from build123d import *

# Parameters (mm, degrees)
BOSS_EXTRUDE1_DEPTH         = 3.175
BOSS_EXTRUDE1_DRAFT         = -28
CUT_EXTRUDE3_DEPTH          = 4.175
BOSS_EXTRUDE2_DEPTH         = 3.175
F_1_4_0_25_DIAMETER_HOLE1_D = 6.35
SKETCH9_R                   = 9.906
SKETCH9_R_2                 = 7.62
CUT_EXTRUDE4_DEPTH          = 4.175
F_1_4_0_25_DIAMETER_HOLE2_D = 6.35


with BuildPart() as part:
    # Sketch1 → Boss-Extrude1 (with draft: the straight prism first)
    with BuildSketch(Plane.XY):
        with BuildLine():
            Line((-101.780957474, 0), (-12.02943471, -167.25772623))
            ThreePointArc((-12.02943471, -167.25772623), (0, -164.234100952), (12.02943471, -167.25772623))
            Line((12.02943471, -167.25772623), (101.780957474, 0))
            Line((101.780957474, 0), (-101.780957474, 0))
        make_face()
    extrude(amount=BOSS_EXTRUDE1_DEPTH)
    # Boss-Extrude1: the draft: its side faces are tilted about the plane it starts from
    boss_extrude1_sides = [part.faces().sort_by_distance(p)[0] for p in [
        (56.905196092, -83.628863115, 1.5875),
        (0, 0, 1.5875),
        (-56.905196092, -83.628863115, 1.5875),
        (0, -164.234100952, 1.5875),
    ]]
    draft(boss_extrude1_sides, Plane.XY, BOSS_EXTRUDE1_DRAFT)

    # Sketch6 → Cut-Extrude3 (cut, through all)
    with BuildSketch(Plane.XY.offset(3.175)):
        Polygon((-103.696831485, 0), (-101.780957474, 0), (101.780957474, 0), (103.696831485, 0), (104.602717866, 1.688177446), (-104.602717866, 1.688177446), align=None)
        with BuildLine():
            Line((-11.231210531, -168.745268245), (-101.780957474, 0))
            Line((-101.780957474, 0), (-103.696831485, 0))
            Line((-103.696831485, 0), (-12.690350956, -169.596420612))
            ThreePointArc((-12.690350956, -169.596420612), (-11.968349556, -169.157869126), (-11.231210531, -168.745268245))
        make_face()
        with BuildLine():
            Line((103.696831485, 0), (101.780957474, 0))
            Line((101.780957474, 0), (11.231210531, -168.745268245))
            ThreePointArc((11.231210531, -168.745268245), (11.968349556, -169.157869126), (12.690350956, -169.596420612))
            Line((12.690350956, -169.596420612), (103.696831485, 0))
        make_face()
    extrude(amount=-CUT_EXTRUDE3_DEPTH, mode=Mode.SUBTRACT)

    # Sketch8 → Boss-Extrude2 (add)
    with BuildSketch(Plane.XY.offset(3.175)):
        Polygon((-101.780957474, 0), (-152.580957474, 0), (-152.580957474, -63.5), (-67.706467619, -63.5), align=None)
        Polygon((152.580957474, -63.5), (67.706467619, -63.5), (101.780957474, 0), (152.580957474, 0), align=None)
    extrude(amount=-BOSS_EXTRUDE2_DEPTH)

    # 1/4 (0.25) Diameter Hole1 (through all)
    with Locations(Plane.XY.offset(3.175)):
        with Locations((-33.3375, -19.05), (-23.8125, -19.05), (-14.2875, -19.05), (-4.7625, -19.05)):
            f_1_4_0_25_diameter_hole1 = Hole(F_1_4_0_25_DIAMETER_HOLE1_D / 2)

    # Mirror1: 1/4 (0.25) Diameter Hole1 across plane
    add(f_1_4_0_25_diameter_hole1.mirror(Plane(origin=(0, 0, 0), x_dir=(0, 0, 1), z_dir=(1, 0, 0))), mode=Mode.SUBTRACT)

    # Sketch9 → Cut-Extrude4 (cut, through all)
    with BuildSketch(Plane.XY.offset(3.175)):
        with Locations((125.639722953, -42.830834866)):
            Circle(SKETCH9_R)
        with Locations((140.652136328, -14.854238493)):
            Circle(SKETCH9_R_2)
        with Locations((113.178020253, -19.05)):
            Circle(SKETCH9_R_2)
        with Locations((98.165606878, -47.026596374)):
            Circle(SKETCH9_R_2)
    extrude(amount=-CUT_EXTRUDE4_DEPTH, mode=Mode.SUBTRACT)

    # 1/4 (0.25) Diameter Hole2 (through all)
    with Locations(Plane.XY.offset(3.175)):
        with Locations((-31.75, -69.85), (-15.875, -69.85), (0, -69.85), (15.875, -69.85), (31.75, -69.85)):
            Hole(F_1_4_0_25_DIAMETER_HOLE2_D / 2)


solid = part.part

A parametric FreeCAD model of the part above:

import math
import FreeCAD as App
import Part
import Sketcher
Q = App.Units.Quantity


def faces_at(feature, points):
    """Names of the faces that lie closest to the given points."""
    faces = feature.Shape.Faces
    near = lambda p: min(range(len(faces)), key=lambda i: faces[i].distToShape(Part.Vertex(*p))[0])
    return sorted({f"Face{near(p) + 1}" for p in points})


def add_polygon(sketch, points):
    """Adds a closed chain of lines whose ends are joined by coincident constraints."""
    first, n = sketch.GeometryCount, len(points)
    for a, b in zip(points, points[1:] + points[:1]):
        sketch.addGeometry(Part.LineSegment(App.Vector(*a, 0), App.Vector(*b, 0)), False)
    for i in range(n):
        sketch.addConstraint(Sketcher.Constraint("Coincident", first + i, 2, first + (i + 1) % n, 1))

doc = App.newDocument("Part")
body = doc.addObject("PartDesign::Body", "Body")

sketch1 = body.newObject("Sketcher::SketchObject", "Sketch")
sketch1.AttachmentSupport = (doc.getObject("XY_Plane"), [""])
sketch1.MapMode = "FlatFace"
sketch1.addGeometry(Part.LineSegment(App.Vector(-102, 0, 0), App.Vector(-12, -167, 0)), False)
sketch1.addGeometry(Part.ArcOfCircle(Part.Circle(App.Vector(0, -190, 0), App.Vector(0, 0, 1), 25), math.radians(62), math.radians(118)), False)
sketch1.addGeometry(Part.LineSegment(App.Vector(12, -167, 0), App.Vector(102, 0, 0)), False)
sketch1.addGeometry(Part.LineSegment(App.Vector(102, 0, 0), App.Vector(-102, 0, 0)), False)
sketch1.addConstraint(Sketcher.Constraint("Coincident", 0, 2, 1, 2))
sketch1.addConstraint(Sketcher.Constraint("Coincident", 1, 1, 2, 1))
sketch1.addConstraint(Sketcher.Constraint("Coincident", 2, 2, 3, 1))
sketch1.addConstraint(Sketcher.Constraint("Coincident", 3, 2, 0, 1))
sketch1.addConstraint(Sketcher.Constraint("Horizontal", 3))
sketch1.addConstraint(Sketcher.Constraint("Symmetric", 2, 2, 3, 2, -1, 1))
sketch1.addConstraint(Sketcher.Constraint("Symmetric", 0, 2, 1, 1, -2))
sketch1.addConstraint(Sketcher.Constraint("Radius", 1, 25.441249))
sketch1.addConstraint(Sketcher.Constraint("Distance", 0, 189.816972))
sketch1.addConstraint(Sketcher.Constraint("DistanceX", 3, 2, 3, 1, 203.561915))
sketch1.addConstraint(Sketcher.Constraint("DistanceX", 0, 2, 1, 1, 24.058869))
pad1 = body.newObject("PartDesign::Pad", "Pad")
pad1.Profile = sketch1
pad1.Length = Q("0.125 in")
doc.recompute()

draft = body.newObject("PartDesign::Draft", "Draft")
draft.Base = (pad1, faces_at(pad1, [
    (56.905, -83.629, 1.587),
    (0, 0, 1.587),
    (-56.905, -83.629, 1.587),
    (0, -164.234, 1.587),
]))
draft.NeutralPlane = (doc.getObject("XY_Plane"), [""])
draft.Angle = 28
draft.Reversed = True

sketch2 = body.newObject("Sketcher::SketchObject", "Sketch001")
sketch2.AttachmentSupport = (doc.getObject("XY_Plane"), [""])
sketch2.MapMode = "FlatFace"
sketch2.AttachmentOffset = App.Placement(App.Vector(0, 0, 0.125 * 25.4), App.Rotation())
sketch2.addGeometry(Part.LineSegment(App.Vector(-101.8, 0, 0), App.Vector(101.8, 0, 0)), False)
sketch2.addGeometry(Part.LineSegment(App.Vector(101.8, 0, 0), App.Vector(11.2, -168.7, 0)), False)
sketch2.addGeometry(Part.ArcOfCircle(Part.Circle(App.Vector(0, -189.7, 0), App.Vector(0, 0, 1), 23.8), math.radians(57.71), math.radians(61.78)), False)
sketch2.addGeometry(Part.LineSegment(App.Vector(12.7, -169.6, 0), App.Vector(103.7, 0, 0)), False)
sketch2.addGeometry(Part.LineSegment(App.Vector(103.7, 0, 0), App.Vector(104.6, 1.7, 0)), False)
sketch2.addGeometry(Part.LineSegment(App.Vector(104.6, 1.7, 0), App.Vector(-104.6, 1.7, 0)), False)
sketch2.addGeometry(Part.LineSegment(App.Vector(-104.6, 1.7, 0), App.Vector(-103.7, 0, 0)), False)
sketch2.addGeometry(Part.LineSegment(App.Vector(-103.7, 0, 0), App.Vector(-12.7, -169.6, 0)), False)
sketch2.addGeometry(Part.ArcOfCircle(Part.Circle(App.Vector(0, -189.7, 0), App.Vector(0, 0, 1), 23.8), math.radians(118.22), math.radians(122.29)), False)
sketch2.addGeometry(Part.LineSegment(App.Vector(-11.2, -168.7, 0), App.Vector(-101.8, 0, 0)), False)
sketch2.addConstraint(Sketcher.Constraint("Coincident", 0, 2, 1, 1))
sketch2.addConstraint(Sketcher.Constraint("Coincident", 1, 2, 2, 2))
sketch2.addConstraint(Sketcher.Constraint("Coincident", 2, 1, 3, 1))
sketch2.addConstraint(Sketcher.Constraint("Coincident", 3, 2, 4, 1))
sketch2.addConstraint(Sketcher.Constraint("Coincident", 4, 2, 5, 1))
sketch2.addConstraint(Sketcher.Constraint("Coincident", 5, 2, 6, 1))
sketch2.addConstraint(Sketcher.Constraint("Coincident", 6, 2, 7, 1))
sketch2.addConstraint(Sketcher.Constraint("Coincident", 7, 2, 8, 2))
sketch2.addConstraint(Sketcher.Constraint("Coincident", 8, 1, 9, 1))
sketch2.addConstraint(Sketcher.Constraint("Coincident", 9, 2, 0, 1))
sketch2.addConstraint(Sketcher.Constraint("Horizontal", 0))
sketch2.addConstraint(Sketcher.Constraint("Horizontal", 5))
sketch2.addConstraint(Sketcher.Constraint("Coincident", 8, 3, 2, 3))
sketch2.addConstraint(Sketcher.Constraint("Equal", 2, 8))
sketch2.addConstraint(Sketcher.Constraint("Symmetric", 3, 2, 6, 2, -1, 1))
sketch2.addConstraint(Sketcher.Constraint("Symmetric", 0, 2, 9, 2, -1, 1))
sketch2.addConstraint(Sketcher.Constraint("Symmetric", 2, 1, 7, 2, -2))
sketch2.addConstraint(Sketcher.Constraint("PointOnObject", 3, 2, -1))
sketch2.addConstraint(Sketcher.Constraint("Parallel", 1, 3))
sketch2.addConstraint(Sketcher.Constraint("Parallel", 3, 4))
sketch2.addConstraint(Sketcher.Constraint("Parallel", 6, 7))
sketch2.addConstraint(Sketcher.Constraint("Parallel", 7, 9))
sketch2.addConstraint(Sketcher.Constraint("Radius", 2, 23.753072))
sketch2.addConstraint(Sketcher.Constraint("DistanceY", 2, 1, 4, 2, 171.284598))
sketch2.addConstraint(Sketcher.Constraint("DistanceX", 7, 2, 2, 1, 25.380702))
sketch2.addConstraint(Sketcher.Constraint("Distance", 1, 191.505149))
sketch2.addConstraint(Sketcher.Constraint("DistanceX", 0, 1, 0, 2, 203.561915))
sketch2.addConstraint(Sketcher.Constraint("DistanceX", 5, 2, 5, 1, 209.205436))
pocket1 = body.newObject("PartDesign::Pocket", "Pocket")
pocket1.Profile = sketch2
pocket1.Type = "ThroughAll"

sketch3 = body.newObject("Sketcher::SketchObject", "Sketch002")
sketch3.AttachmentSupport = (doc.getObject("XY_Plane"), [""])
sketch3.MapMode = "FlatFace"
sketch3.AttachmentOffset = App.Placement(App.Vector(0, 0, 0.125 * 25.4), App.Rotation())
add_polygon(sketch3, [(-102, 0), (-153, 0), (-153, -64), (-68, -64)])
add_polygon(sketch3, [(68, -64), (153, -64), (153, 0), (102, 0)])
sketch3.addConstraint(Sketcher.Constraint("Horizontal", 0))
sketch3.addConstraint(Sketcher.Constraint("Vertical", 1))
sketch3.addConstraint(Sketcher.Constraint("Horizontal", 2))
sketch3.addConstraint(Sketcher.Constraint("Horizontal", 4))
sketch3.addConstraint(Sketcher.Constraint("Vertical", 5))
sketch3.addConstraint(Sketcher.Constraint("Horizontal", 6))
sketch3.addConstraint(Sketcher.Constraint("Symmetric", 0, 2, 5, 2, -1, 1))
sketch3.addConstraint(Sketcher.Constraint("Symmetric", 3, 2, 6, 2, -2))
sketch3.addConstraint(Sketcher.Constraint("Symmetric", 2, 2, 7, 2, -2))
sketch3.addConstraint(Sketcher.Constraint("DistanceX", 0, 2, 0, 1, Q("2 in")))
sketch3.addConstraint(Sketcher.Constraint("DistanceY", 1, 2, 1, 1, Q("2.5 in")))
sketch3.addConstraint(Sketcher.Constraint("Distance", 3, 72.064699))
sketch3.addConstraint(Sketcher.Constraint("DistanceX", 0, 2, -1, 1, 152.580957))
pad2 = body.newObject("PartDesign::Pad", "Pad001")
pad2.Profile = sketch3
pad2.Length = Q("0.125 in")
pad2.Reversed = True

sketch4 = body.newObject("Sketcher::SketchObject", "Sketch003")
sketch4.AttachmentSupport = (doc.getObject("XY_Plane"), [""])
sketch4.MapMode = "FlatFace"
sketch4.AttachmentOffset = App.Placement(App.Vector(0, 0, 0.125 * 25.4), App.Rotation())
sketch4.addGeometry(Part.Circle(App.Vector(-33.3, -19.1, 0), App.Vector(0, 0, 1), 3.2), False)
sketch4.addGeometry(Part.Circle(App.Vector(-23.8, -19.1, 0), App.Vector(0, 0, 1), 3.2), False)
sketch4.addGeometry(Part.Circle(App.Vector(-14.3, -19.1, 0), App.Vector(0, 0, 1), 3.2), False)
sketch4.addGeometry(Part.Circle(App.Vector(-4.8, -19.1, 0), App.Vector(0, 0, 1), 3.2), False)
sketch4.addConstraint(Sketcher.Constraint("Equal", 0, 1))
sketch4.addConstraint(Sketcher.Constraint("Equal", 1, 2))
sketch4.addConstraint(Sketcher.Constraint("Equal", 2, 3))
sketch4.addConstraint(Sketcher.Constraint("Horizontal", 0, 3, 1, 3))
sketch4.addConstraint(Sketcher.Constraint("Horizontal", 1, 3, 2, 3))
sketch4.addConstraint(Sketcher.Constraint("Horizontal", 2, 3, 3, 3))
sketch4.addConstraint(Sketcher.Constraint("Diameter", 0, Q("0.25 in")))
sketch4.addConstraint(Sketcher.Constraint("DistanceY", 0, 3, -1, 1, Q("0.75 in")))
sketch4.addConstraint(Sketcher.Constraint("DistanceX", 0, 3, 2, 3, Q("0.75 in")))
sketch4.addConstraint(Sketcher.Constraint("DistanceX", 1, 3, 3, 3, Q("0.75 in")))
sketch4.addConstraint(Sketcher.Constraint("DistanceX", 0, 3, -1, 1, Q("1.3125 in")))
sketch4.addConstraint(Sketcher.Constraint("DistanceX", 1, 3, -1, 1, Q("0.9375 in")))
doc.recompute()
hole = body.newObject("PartDesign::Hole", "Hole")
hole.Profile = sketch4
hole.ThreadType = "None"
hole.Diameter = Q("0.25 in")
hole.DepthType = "ThroughAll"
doc.recompute()

mirrored = body.newObject("PartDesign::Mirrored", "Mirrored")
mirrored.Originals = [hole]
mirrored.MirrorPlane = (doc.getObject("YZ_Plane"), [""])
body.Tip = mirrored

sketch5 = body.newObject("Sketcher::SketchObject", "Sketch004")
sketch5.AttachmentSupport = (doc.getObject("XY_Plane"), [""])
sketch5.MapMode = "FlatFace"
sketch5.AttachmentOffset = App.Placement(App.Vector(0, 0, 0.125 * 25.4), App.Rotation())
sketch5.addGeometry(Part.Circle(App.Vector(126, -43, 0), App.Vector(0, 0, 1), 10), False)
sketch5.addGeometry(Part.Circle(App.Vector(141, -15, 0), App.Vector(0, 0, 1), 8), False)
sketch5.addGeometry(Part.Circle(App.Vector(113, -19, 0), App.Vector(0, 0, 1), 8), False)
sketch5.addGeometry(Part.Circle(App.Vector(98, -47, 0), App.Vector(0, 0, 1), 8), False)
sketch5.addConstraint(Sketcher.Constraint("Equal", 1, 2))
sketch5.addConstraint(Sketcher.Constraint("Equal", 2, 3))
sketch5.addConstraint(Sketcher.Constraint("Diameter", 1, Q("0.6 in")))
sketch5.addConstraint(Sketcher.Constraint("Diameter", 0, Q("0.78 in")))
sketch5.addConstraint(Sketcher.Constraint("DistanceY", 2, 3, -1, 1, Q("0.75 in")))
sketch5.addConstraint(Sketcher.Constraint("DistanceY", 1, 3, -1, 1, 14.854238))
sketch5.addConstraint(Sketcher.Constraint("DistanceX", -1, 1, 2, 3, 113.17802))
sketch5.addConstraint(Sketcher.Constraint("DistanceY", 3, 3, 0, 3, 4.195762))
sketch5.addConstraint(Sketcher.Constraint("DistanceX", 3, 3, 1, 3, 42.486529))
sketch5.addConstraint(Sketcher.Constraint("DistanceX", -1, 1, 0, 3, 125.639723))
sketch5.addConstraint(Sketcher.Constraint("DistanceY", 0, 3, -1, 1, 42.830835))
sketch5.addConstraint(Sketcher.Constraint("DistanceX", -1, 1, 1, 3, 140.652136))
pocket2 = body.newObject("PartDesign::Pocket", "Pocket001")
pocket2.Profile = sketch5
pocket2.Type = "ThroughAll"

sketch6 = body.newObject("Sketcher::SketchObject", "Sketch005")
sketch6.AttachmentSupport = (doc.getObject("XY_Plane"), [""])
sketch6.MapMode = "FlatFace"
sketch6.AttachmentOffset = App.Placement(App.Vector(0, 0, 0.125 * 25.4), App.Rotation())
sketch6.addGeometry(Part.Circle(App.Vector(-31.8, -69.8, 0), App.Vector(0, 0, 1), 3.2), False)
sketch6.addGeometry(Part.Circle(App.Vector(-15.9, -69.8, 0), App.Vector(0, 0, 1), 3.2), False)
sketch6.addGeometry(Part.Circle(App.Vector(0, -69.8, 0), App.Vector(0, 0, 1), 3.2), False)
sketch6.addGeometry(Part.Circle(App.Vector(15.9, -69.8, 0), App.Vector(0, 0, 1), 3.2), False)
sketch6.addGeometry(Part.Circle(App.Vector(31.8, -69.8, 0), App.Vector(0, 0, 1), 3.2), False)
sketch6.addConstraint(Sketcher.Constraint("Equal", 0, 1))
sketch6.addConstraint(Sketcher.Constraint("Equal", 1, 2))
sketch6.addConstraint(Sketcher.Constraint("Equal", 2, 3))
sketch6.addConstraint(Sketcher.Constraint("Equal", 3, 4))
sketch6.addConstraint(Sketcher.Constraint("Symmetric", 1, 3, 3, 3, -2))
sketch6.addConstraint(Sketcher.Constraint("Symmetric", 0, 3, 4, 3, -2))
sketch6.addConstraint(Sketcher.Constraint("PointOnObject", 2, 3, -2))
sketch6.addConstraint(Sketcher.Constraint("Horizontal", 0, 3, 1, 3))
sketch6.addConstraint(Sketcher.Constraint("Horizontal", 1, 3, 2, 3))
sketch6.addConstraint(Sketcher.Constraint("Diameter", 0, Q("0.25 in")))
sketch6.addConstraint(Sketcher.Constraint("DistanceX", 0, 3, 4, 3, Q("2.5 in")))
sketch6.addConstraint(Sketcher.Constraint("DistanceY", 0, 3, -1, 1, Q("2.75 in")))
sketch6.addConstraint(Sketcher.Constraint("DistanceX", 1, 3, 3, 3, Q("1.25 in")))
doc.recompute()
hole2 = body.newObject("PartDesign::Hole", "Hole001")
hole2.Profile = sketch6
hole2.ThreadType = "None"
hole2.Diameter = Q("0.25 in")
hole2.DepthType = "ThroughAll"

doc.recompute()
